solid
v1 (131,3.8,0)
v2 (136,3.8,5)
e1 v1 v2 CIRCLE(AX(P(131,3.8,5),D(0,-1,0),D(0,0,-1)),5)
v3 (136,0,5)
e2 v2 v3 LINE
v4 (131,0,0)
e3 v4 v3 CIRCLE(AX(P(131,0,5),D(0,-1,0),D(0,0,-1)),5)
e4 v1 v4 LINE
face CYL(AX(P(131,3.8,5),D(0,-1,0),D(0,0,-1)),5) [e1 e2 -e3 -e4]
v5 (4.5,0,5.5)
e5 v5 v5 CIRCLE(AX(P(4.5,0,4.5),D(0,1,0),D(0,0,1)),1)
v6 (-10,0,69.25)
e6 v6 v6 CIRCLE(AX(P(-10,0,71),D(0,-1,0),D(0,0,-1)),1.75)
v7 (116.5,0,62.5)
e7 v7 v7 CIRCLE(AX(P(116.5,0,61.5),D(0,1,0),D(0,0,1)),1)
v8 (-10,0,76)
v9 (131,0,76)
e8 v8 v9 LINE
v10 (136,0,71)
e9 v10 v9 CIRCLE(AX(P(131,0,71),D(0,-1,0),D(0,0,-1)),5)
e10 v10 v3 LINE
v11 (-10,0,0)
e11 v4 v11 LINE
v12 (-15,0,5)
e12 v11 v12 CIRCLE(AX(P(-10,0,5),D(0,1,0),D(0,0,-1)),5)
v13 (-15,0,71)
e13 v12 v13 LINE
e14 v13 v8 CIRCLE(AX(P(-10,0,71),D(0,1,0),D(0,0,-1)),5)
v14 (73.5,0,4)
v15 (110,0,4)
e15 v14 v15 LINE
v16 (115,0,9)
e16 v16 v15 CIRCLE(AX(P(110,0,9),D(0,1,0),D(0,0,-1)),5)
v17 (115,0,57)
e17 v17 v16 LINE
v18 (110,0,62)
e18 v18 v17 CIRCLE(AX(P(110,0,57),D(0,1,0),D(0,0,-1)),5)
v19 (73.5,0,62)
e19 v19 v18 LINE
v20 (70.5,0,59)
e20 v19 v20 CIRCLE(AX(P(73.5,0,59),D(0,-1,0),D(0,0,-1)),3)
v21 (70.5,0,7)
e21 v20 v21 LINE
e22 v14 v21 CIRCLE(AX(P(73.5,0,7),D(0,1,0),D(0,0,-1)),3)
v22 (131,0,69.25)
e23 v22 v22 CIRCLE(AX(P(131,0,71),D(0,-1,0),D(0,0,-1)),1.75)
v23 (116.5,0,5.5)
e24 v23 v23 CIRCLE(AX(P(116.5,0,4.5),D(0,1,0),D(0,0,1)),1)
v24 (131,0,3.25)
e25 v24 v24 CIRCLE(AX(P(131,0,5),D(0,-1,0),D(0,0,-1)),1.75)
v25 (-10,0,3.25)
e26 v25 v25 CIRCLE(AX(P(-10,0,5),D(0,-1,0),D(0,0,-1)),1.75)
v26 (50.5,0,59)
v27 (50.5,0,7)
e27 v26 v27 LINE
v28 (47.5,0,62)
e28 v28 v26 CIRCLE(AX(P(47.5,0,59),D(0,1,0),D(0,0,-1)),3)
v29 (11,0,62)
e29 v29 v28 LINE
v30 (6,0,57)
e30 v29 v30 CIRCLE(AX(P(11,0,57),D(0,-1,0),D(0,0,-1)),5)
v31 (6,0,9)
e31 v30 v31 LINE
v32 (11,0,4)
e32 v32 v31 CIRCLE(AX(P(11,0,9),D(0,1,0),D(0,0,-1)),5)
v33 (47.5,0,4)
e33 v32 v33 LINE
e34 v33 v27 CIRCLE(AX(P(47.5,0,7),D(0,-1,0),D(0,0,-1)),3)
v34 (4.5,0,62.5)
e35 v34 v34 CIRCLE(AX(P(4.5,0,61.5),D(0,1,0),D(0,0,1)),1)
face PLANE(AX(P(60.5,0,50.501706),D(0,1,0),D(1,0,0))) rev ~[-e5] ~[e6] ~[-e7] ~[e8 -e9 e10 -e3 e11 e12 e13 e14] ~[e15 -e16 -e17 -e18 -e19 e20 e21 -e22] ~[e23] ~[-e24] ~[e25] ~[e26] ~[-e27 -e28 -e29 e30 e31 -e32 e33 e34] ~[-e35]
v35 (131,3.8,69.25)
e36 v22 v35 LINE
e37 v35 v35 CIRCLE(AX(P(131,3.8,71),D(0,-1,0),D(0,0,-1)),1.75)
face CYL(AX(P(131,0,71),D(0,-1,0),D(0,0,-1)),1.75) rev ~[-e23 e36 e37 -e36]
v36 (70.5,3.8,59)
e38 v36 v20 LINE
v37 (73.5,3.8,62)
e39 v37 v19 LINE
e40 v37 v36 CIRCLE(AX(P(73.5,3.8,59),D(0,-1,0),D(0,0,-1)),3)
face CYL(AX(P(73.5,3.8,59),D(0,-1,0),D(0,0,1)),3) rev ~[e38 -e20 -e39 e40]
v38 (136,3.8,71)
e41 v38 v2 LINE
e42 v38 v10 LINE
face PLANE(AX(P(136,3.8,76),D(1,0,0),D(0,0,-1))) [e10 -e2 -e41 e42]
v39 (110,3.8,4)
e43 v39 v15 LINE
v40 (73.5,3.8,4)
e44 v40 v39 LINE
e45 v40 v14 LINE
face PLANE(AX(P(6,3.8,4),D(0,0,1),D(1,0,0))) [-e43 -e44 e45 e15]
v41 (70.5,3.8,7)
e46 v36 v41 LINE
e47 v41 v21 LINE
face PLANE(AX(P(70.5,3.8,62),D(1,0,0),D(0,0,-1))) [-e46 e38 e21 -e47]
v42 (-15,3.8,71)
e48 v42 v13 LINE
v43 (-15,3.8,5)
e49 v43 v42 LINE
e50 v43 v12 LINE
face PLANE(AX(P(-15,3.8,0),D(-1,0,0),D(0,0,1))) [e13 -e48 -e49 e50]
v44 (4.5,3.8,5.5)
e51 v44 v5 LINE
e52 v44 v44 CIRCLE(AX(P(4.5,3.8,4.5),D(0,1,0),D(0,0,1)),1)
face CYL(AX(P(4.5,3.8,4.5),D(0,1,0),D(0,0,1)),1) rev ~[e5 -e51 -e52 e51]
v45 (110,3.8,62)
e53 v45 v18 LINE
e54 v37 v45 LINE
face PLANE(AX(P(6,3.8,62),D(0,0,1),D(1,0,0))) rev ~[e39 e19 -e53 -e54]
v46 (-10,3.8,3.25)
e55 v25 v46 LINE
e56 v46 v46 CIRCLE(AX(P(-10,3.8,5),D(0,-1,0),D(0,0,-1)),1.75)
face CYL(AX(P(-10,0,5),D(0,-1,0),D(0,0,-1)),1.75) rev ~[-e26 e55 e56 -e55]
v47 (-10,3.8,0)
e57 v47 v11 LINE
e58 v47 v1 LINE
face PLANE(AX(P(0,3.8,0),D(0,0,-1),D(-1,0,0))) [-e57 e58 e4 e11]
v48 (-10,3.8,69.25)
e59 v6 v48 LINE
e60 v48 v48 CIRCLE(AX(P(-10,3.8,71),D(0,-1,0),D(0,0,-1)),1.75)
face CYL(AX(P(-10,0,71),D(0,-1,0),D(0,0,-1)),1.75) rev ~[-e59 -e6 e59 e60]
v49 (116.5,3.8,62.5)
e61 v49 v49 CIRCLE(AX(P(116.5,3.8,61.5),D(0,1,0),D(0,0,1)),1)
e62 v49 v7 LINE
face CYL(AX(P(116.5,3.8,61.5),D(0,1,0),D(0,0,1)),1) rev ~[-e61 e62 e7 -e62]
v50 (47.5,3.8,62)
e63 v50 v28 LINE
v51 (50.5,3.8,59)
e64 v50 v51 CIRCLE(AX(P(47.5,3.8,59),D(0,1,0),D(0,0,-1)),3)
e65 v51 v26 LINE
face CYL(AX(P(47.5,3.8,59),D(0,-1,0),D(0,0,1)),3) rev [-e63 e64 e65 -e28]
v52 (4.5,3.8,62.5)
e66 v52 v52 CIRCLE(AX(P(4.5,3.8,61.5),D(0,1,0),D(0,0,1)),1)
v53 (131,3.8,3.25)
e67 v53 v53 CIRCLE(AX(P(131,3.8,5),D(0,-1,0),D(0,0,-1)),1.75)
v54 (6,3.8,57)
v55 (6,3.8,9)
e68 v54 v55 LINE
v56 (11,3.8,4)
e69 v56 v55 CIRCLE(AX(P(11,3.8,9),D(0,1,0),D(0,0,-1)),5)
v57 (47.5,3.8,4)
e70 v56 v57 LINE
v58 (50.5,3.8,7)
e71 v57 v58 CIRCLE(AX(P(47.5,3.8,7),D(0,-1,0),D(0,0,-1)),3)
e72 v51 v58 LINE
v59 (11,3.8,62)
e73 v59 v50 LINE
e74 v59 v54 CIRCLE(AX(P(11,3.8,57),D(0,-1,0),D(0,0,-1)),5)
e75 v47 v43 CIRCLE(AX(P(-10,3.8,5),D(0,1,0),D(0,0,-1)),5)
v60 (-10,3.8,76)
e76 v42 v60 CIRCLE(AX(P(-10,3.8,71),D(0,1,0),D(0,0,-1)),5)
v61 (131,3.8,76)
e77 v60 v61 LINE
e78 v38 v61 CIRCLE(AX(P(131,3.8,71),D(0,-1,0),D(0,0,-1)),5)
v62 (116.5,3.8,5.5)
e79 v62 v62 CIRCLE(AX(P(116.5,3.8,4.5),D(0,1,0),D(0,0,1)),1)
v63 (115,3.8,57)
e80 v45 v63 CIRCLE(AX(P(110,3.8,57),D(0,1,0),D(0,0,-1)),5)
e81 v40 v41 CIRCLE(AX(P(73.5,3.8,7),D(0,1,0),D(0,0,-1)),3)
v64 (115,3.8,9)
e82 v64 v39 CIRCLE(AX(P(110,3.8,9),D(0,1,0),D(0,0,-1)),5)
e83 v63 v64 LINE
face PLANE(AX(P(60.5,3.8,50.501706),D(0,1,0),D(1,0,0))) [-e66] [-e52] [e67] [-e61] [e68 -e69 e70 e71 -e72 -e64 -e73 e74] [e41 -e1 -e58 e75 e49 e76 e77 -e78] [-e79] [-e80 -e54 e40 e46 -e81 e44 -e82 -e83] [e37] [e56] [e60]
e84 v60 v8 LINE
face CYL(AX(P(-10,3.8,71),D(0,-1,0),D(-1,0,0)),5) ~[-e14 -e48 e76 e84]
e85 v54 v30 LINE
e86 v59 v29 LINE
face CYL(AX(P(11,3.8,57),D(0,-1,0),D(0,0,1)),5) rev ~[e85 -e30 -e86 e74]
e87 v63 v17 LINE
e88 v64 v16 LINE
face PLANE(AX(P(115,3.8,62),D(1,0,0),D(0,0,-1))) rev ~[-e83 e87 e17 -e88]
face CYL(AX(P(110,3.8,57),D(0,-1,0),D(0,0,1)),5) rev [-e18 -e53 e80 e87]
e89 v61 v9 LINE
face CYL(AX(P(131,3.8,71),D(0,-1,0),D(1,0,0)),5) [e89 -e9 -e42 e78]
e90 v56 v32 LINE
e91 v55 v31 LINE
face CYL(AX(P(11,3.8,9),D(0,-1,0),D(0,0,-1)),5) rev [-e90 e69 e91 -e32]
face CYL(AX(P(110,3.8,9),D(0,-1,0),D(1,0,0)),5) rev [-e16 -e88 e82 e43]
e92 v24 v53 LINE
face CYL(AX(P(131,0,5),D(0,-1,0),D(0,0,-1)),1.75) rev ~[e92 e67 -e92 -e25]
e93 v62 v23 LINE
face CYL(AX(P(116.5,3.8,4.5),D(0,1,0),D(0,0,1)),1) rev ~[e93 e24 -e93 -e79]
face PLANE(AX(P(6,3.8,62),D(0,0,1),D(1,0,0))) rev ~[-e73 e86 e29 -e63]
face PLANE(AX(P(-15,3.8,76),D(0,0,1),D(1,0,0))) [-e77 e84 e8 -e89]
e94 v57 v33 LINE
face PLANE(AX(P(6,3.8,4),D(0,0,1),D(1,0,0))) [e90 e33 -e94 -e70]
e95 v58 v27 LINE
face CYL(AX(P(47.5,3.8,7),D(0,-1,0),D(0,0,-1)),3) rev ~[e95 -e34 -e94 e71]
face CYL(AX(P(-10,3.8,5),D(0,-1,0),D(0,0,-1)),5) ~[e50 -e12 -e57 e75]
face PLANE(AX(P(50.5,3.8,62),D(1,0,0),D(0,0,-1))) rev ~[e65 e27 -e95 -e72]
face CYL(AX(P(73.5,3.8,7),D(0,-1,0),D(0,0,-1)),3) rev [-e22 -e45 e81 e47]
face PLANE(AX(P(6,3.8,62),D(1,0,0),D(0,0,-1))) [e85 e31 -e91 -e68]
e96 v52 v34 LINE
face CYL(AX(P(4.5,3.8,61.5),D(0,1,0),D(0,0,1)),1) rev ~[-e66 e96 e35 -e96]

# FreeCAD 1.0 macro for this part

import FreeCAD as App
import Part
import Sketcher


def edges_at(feature, points):
    """Names of the edges that pass closest to the given points."""
    edges = feature.Shape.Edges
    near = lambda p: min(range(len(edges)), key=lambda i: edges[i].distToShape(Part.Vertex(*p))[0])
    return sorted({f"Edge{near(p) + 1}" for p in points})

doc = App.newDocument("Part")
params = doc.addObject("Spreadsheet::Sheet", "Params")
for row, (alias, value) in enumerate([
    ("sketch1_width", "121 mm"),
    ("sketch1_height", "66 mm"),
    ("pad1_length", "3.8 mm"),
    ("sketch2_width", "109 mm"),
    ("sketch2_height", "58 mm"),
    ("fillet_radius", "5 mm"),
    ("sketch3_width", "20 mm"),
    ("sketch3_height", "58 mm"),
    ("pad2_length", "3.8 mm"),
    ("fillet2_radius", "3 mm"),
    ("sketch4_diameter", "2 mm"),
    ("sketch5_width", "15 mm"),
    ("sketch5_width2", "151 mm"),
    ("sketch5_height", "76 mm"),
    ("sketch5_height2", "66 mm"),
    ("sketch6_diameter", "3.5 mm"),
    ("fillet3_radius", "5 mm"),
], start=1):
    params.set(f"A{row}", alias)
    params.set(f"B{row}", "=" + value)
    params.setAlias(f"B{row}", alias)

body = doc.addObject("PartDesign::Body", "Body")

# Sketch on XZ plane
sketch1 = doc.addObject("Sketcher::SketchObject", "Sketch")
body.addObject(sketch1)
sketch1.AttachmentSupport = (doc.XZ_Plane, [""])
sketch1.MapMode = "FlatFace"
sketch1.addGeometry(Part.LineSegment(App.Vector(0, 0, 0), App.Vector(0, 66, 0)), False)
sketch1.addGeometry(Part.LineSegment(App.Vector(0, 66, 0), App.Vector(121, 66, 0)), False)
sketch1.addGeometry(Part.LineSegment(App.Vector(121, 66, 0), App.Vector(121, 0, 0)), False)
sketch1.addGeometry(Part.LineSegment(App.Vector(121, 0, 0), App.Vector(0, 0, 0)), False)
sketch1.addConstraint(Sketcher.Constraint("Coincident", 0, 2, 1, 1))
sketch1.addConstraint(Sketcher.Constraint("Coincident", 1, 2, 2, 1))
sketch1.addConstraint(Sketcher.Constraint("Coincident", 2, 2, 3, 1))
sketch1.addConstraint(Sketcher.Constraint("Coincident", 3, 2, 0, 1))
sketch1.addConstraint(Sketcher.Constraint("Vertical", 0))
sketch1.addConstraint(Sketcher.Constraint("Horizontal", 1))
sketch1.addConstraint(Sketcher.Constraint("Vertical", 2))
sketch1.addConstraint(Sketcher.Constraint("Horizontal", 3))
sketch1.addConstraint(Sketcher.Constraint("Coincident", 3, 2, -1, 1))
sketch1.addConstraint(Sketcher.Constraint("DistanceX", 1, 1, 1, 2, 121.0))
sketch1.addConstraint(Sketcher.Constraint("DistanceY", 0, 1, 0, 2, 66.0))
sketch1.setExpression("Constraints[9]", "Params.sketch1_width")
sketch1.setExpression("Constraints[10]", "Params.sketch1_height")
pad1 = doc.addObject("PartDesign::Pad", "Pad")
body.addObject(pad1)
pad1.Profile = sketch1
pad1.setExpression("Length", "Params.pad1_length")
pad1.Reversed = True

# Sketch on XZ plane
sketch2 = doc.addObject("Sketcher::SketchObject", "Sketch001")
body.addObject(sketch2)
sketch2.AttachmentSupport = (doc.XZ_Plane, [""])
sketch2.MapMode = "FlatFace"
sketch2.AttachmentOffset = App.Placement(App.Vector(0, 0, -3.8), App.Rotation())
sketch2.addGeometry(Part.LineSegment(App.Vector(6, 4, 0), App.Vector(6, 62, 0)), False)
sketch2.addGeometry(Part.LineSegment(App.Vector(6, 62, 0), App.Vector(115, 62, 0)), False)
sketch2.addGeometry(Part.LineSegment(App.Vector(115, 62, 0), App.Vector(115, 4, 0)), False)
sketch2.addGeometry(Part.LineSegment(App.Vector(115, 4, 0), App.Vector(6, 4, 0)), False)
sketch2.addConstraint(Sketcher.Constraint("Coincident", 0, 2, 1, 1))
sketch2.addConstraint(Sketcher.Constraint("Coincident", 1, 2, 2, 1))
sketch2.addConstraint(Sketcher.Constraint("Coincident", 2, 2, 3, 1))
sketch2.addConstraint(Sketcher.Constraint("Coincident", 3, 2, 0, 1))
sketch2.addConstraint(Sketcher.Constraint("Vertical", 0))
sketch2.addConstraint(Sketcher.Constraint("Horizontal", 1))
sketch2.addConstraint(Sketcher.Constraint("Vertical", 2))
sketch2.addConstraint(Sketcher.Constraint("Horizontal", 3))
sketch2.addConstraint(Sketcher.Constraint("DistanceX", 1, 1, 1, 2, 109.0))
sketch2.addConstraint(Sketcher.Constraint("DistanceY", 0, 1, 0, 2, 58.0))
sketch2.addConstraint(Sketcher.Constraint("DistanceX", -1, 1, 0, 2, 6.0))
sketch2.addConstraint(Sketcher.Constraint("DistanceY", -1, 1, 0, 2, 62.0))
sketch2.setExpression("Constraints[8]", "Params.sketch2_width")
sketch2.setExpression("Constraints[9]", "Params.sketch2_height")
pocket1 = doc.addObject("PartDesign::Pocket", "Pocket")
body.addObject(pocket1)
pocket1.Profile = sketch2
pocket1.Type = "ThroughAll"
pocket1.Reversed = True
doc.recompute()

fillet = doc.addObject("PartDesign::Fillet", "Fillet")
body.addObject(fillet)
fillet.Base = (pocket1, edges_at(pocket1, [
    (115, 1.9, 4),
    (115, 1.9, 62),
    (6, 1.9, 62),
    (6, 1.9, 4),
]))
fillet.setExpression("Radius", "Params.fillet_radius")

# Sketch on XZ plane
sketch3 = doc.addObject("Sketcher::SketchObject", "Sketch002")
body.addObject(sketch3)
sketch3.AttachmentSupport = (doc.XZ_Plane, [""])
sketch3.MapMode = "FlatFace"
sketch3.AttachmentOffset = App.Placement(App.Vector(0, 0, -3.8), App.Rotation())
sketch3.addGeometry(Part.LineSegment(App.Vector(50, 4, 0), App.Vector(50, 62, 0)), False)
sketch3.addGeometry(Part.LineSegment(App.Vector(50, 62, 0), App.Vector(70, 62, 0)), False)
sketch3.addGeometry(Part.LineSegment(App.Vector(70, 62, 0), App.Vector(70, 4, 0)), False)
sketch3.addGeometry(Part.LineSegment(App.Vector(70, 4, 0), App.Vector(50, 4, 0)), False)
sketch3.addConstraint(Sketcher.Constraint("Coincident", 0, 2, 1, 1))
sketch3.addConstraint(Sketcher.Constraint("Coincident", 1, 2, 2, 1))
sketch3.addConstraint(Sketcher.Constraint("Coincident", 2, 2, 3, 1))
sketch3.addConstraint(Sketcher.Constraint("Coincident", 3, 2, 0, 1))
sketch3.addConstraint(Sketcher.Constraint("Vertical", 0))
sketch3.addConstraint(Sketcher.Constraint("Horizontal", 1))
sketch3.addConstraint(Sketcher.Constraint("Vertical", 2))
sketch3.addConstraint(Sketcher.Constraint("Horizontal", 3))
sketch3.addConstraint(Sketcher.Constraint("DistanceX", 1, 1, 1, 2, 20.0))
sketch3.addConstraint(Sketcher.Constraint("DistanceY", 0, 1, 0, 2, 58.0))
sketch3.addConstraint(Sketcher.Constraint("DistanceY", -1, 1, 0, 2, 62.0))
sketch3.addConstraint(Sketcher.Constraint("DistanceX", -1, 1, 0, 2, 50.5))
sketch3.setExpression("Constraints[8]", "Params.sketch3_width")
sketch3.setExpression("Constraints[9]", "Params.sketch3_height")
pad2 = doc.addObject("PartDesign::Pad", "Pad001")
body.addObject(pad2)
pad2.Profile = sketch3
pad2.setExpression("Length", "Params.pad2_length")
doc.recompute()

fillet2 = doc.addObject("PartDesign::Fillet", "Fillet001")
body.addObject(fillet2)
fillet2.Base = (pad2, edges_at(pad2, [
    (70.5, 1.9, 4),
    (70.5, 1.9, 62),
    (50.5, 1.9, 62),
    (50.5, 1.9, 4),
]))
fillet2.setExpression("Radius", "Params.fillet2_radius")

# Sketch on XZ plane
sketch4 = doc.addObject("Sketcher::SketchObject", "Sketch003")
body.addObject(sketch4)
sketch4.AttachmentSupport = (doc.XZ_Plane, [""])
sketch4.MapMode = "FlatFace"
sketch4.AttachmentOffset = App.Placement(App.Vector(0, 0, -3.8), App.Rotation())
sketch4.addGeometry(Part.Circle(App.Vector(116.5, 61.5, 0), App.Vector(0, 0, 1), 1), False)
sketch4.addGeometry(Part.Circle(App.Vector(116.5, 4.5, 0), App.Vector(0, 0, 1), 1), False)
sketch4.addGeometry(Part.Circle(App.Vector(4.5, 4.5, 0), App.Vector(0, 0, 1), 1), False)
sketch4.addGeometry(Part.Circle(App.Vector(4.5, 61.5, 0), App.Vector(0, 0, 1), 1), False)
sketch4.addConstraint(Sketcher.Constraint("Equal", 0, 1))
sketch4.addConstraint(Sketcher.Constraint("Equal", 1, 2))
sketch4.addConstraint(Sketcher.Constraint("Equal", 2, 3))
sketch4.addConstraint(Sketcher.Constraint("Horizontal", 1, 3, 2, 3))
sketch4.addConstraint(Sketcher.Constraint("Horizontal", 0, 3, 3, 3))
sketch4.addConstraint(Sketcher.Constraint("Vertical", 0, 3, 1, 3))
sketch4.addConstraint(Sketcher.Constraint("Vertical", 2, 3, 3, 3))
sketch4.addConstraint(Sketcher.Constraint("Diameter", 0, 2.0))
sketch4.addConstraint(Sketcher.Constraint("DistanceY", 1, 3, 0, 3, 57.0))
sketch4.addConstraint(Sketcher.Constraint("DistanceX", 2, 3, 1, 3, 112.0))
sketch4.addConstraint(Sketcher.Constraint("DistanceX", -1, 1, 0, 3, 116.5))
sketch4.addConstraint(Sketcher.Constraint("DistanceY", -1, 1, 0, 3, 61.5))
sketch4.setExpression("Constraints[7]", "Params.sketch4_diameter")
pocket2 = doc.addObject("PartDesign::Pocket", "Pocket001")
body.addObject(pocket2)
pocket2.Profile = sketch4
pocket2.Type = "ThroughAll"
pocket2.Reversed = True

# Sketch on XZ plane
sketch5 = doc.addObject("Sketcher::SketchObject", "Sketch004")
body.addObject(sketch5)
sketch5.AttachmentSupport = (doc.XZ_Plane, [""])
sketch5.MapMode = "FlatFace"
sketch5.AttachmentOffset = App.Placement(App.Vector(0, 0, -3.8), App.Rotation())
sketch5.addGeometry(Part.LineSegment(App.Vector(0, 0, 0), App.Vector(-15, 0, 0)), False)
sketch5.addGeometry(Part.LineSegment(App.Vector(-15, 0, 0), App.Vector(-15, 76, 0)), False)
sketch5.addGeometry(Part.LineSegment(App.Vector(-15, 76, 0), App.Vector(136, 76, 0)), False)
sketch5.addGeometry(Part.LineSegment(App.Vector(136, 76, 0), App.Vector(136, 0, 0)), False)
sketch5.addGeometry(Part.LineSegment(App.Vector(136, 0, 0), App.Vector(121, 0, 0)), False)
sketch5.addGeometry(Part.LineSegment(App.Vector(121, 0, 0), App.Vector(121, 66, 0)), False)
sketch5.addGeometry(Part.LineSegment(App.Vector(121, 66, 0), App.Vector(0, 66, 0)), False)
sketch5.addGeometry(Part.LineSegment(App.Vector(0, 66, 0), App.Vector(0, 0, 0)), False)
sketch5.addConstraint(Sketcher.Constraint("Coincident", 0, 2, 1, 1))
sketch5.addConstraint(Sketcher.Constraint("Coincident", 1, 2, 2, 1))
sketch5.addConstraint(Sketcher.Constraint("Coincident", 2, 2, 3, 1))
sketch5.addConstraint(Sketcher.Constraint("Coincident", 3, 2, 4, 1))
sketch5.addConstraint(Sketcher.Constraint("Coincident", 4, 2, 5, 1))
sketch5.addConstraint(Sketcher.Constraint("Coincident", 5, 2, 6, 1))
sketch5.addConstraint(Sketcher.Constraint("Coincident", 6, 2, 7, 1))
sketch5.addConstraint(Sketcher.Constraint("Coincident", 7, 2, 0, 1))
sketch5.addConstraint(Sketcher.Constraint("Horizontal", 0))
sketch5.addConstraint(Sketcher.Constraint("Vertical", 1))
sketch5.addConstraint(Sketcher.Constraint("Horizontal", 2))
sketch5.addConstraint(Sketcher.Constraint("Vertical", 3))
sketch5.addConstraint(Sketcher.Constraint("Horizontal", 4))
sketch5.addConstraint(Sketcher.Constraint("Vertical", 5))
sketch5.addConstraint(Sketcher.Constraint("Horizontal", 6))
sketch5.addConstraint(Sketcher.Constraint("Vertical", 7))
sketch5.addConstraint(Sketcher.Constraint("Coincident", 7, 2, -1, 1))
sketch5.addConstraint(Sketcher.Constraint("PointOnObject", 3, 2, -1))
sketch5.addConstraint(Sketcher.Constraint("Equal", 0, 4))
sketch5.addConstraint(Sketcher.Constraint("DistanceX", 0, 2, 0, 1, 15.0))
sketch5.addConstraint(Sketcher.Constraint("DistanceX", 2, 1, 2, 2, 151.0))
sketch5.addConstraint(Sketcher.Constraint("DistanceY", 1, 1, 1, 2, 76.0))
sketch5.addConstraint(Sketcher.Constraint("DistanceY", 5, 1, 5, 2, 66.0))
sketch5.setExpression("Constraints[19]", "Params.sketch5_width")
sketch5.setExpression("Constraints[20]", "Params.sketch5_width2")
sketch5.setExpression("Constraints[21]", "Params.sketch5_height")
sketch5.setExpression("Constraints[22]", "Params.sketch5_height2")
pad3 = doc.addObject("PartDesign::Pad", "Pad002")
body.addObject(pad3)
pad3.Profile = sketch5
pad3.Type = "UpToLast"

# Sketch on XZ plane
sketch6 = doc.addObject("Sketcher::SketchObject", "Sketch005")
body.addObject(sketch6)
sketch6.AttachmentSupport = (doc.XZ_Plane, [""])
sketch6.MapMode = "FlatFace"
sketch6.addGeometry(Part.Circle(App.Vector(-10, 71, 0), App.Vector(0, 0, 1), 1.8), False)
sketch6.addGeometry(Part.Circle(App.Vector(-10, 5, 0), App.Vector(0, 0, 1), 1.8), False)
sketch6.addGeometry(Part.Circle(App.Vector(131, 71, 0), App.Vector(0, 0, 1), 1.8), False)
sketch6.addGeometry(Part.Circle(App.Vector(131, 5, 0), App.Vector(0, 0, 1), 1.8), False)
sketch6.addConstraint(Sketcher.Constraint("Equal", 0, 1))
sketch6.addConstraint(Sketcher.Constraint("Equal", 1, 2))
sketch6.addConstraint(Sketcher.Constraint("Equal", 2, 3))
sketch6.addConstraint(Sketcher.Constraint("Horizontal", 0, 3, 2, 3))
sketch6.addConstraint(Sketcher.Constraint("Horizontal", 1, 3, 3, 3))
sketch6.addConstraint(Sketcher.Constraint("Vertical", 0, 3, 1, 3))
sketch6.addConstraint(Sketcher.Constraint("Vertical", 2, 3, 3, 3))
sketch6.addConstraint(Sketcher.Constraint("Diameter", 0, 3.5))
sketch6.addConstraint(Sketcher.Constraint("DistanceX", 0, 3, -1, 1, 10.0))
sketch6.addConstraint(Sketcher.Constraint("DistanceY", -1, 1, 0, 3, 71.0))
sketch6.addConstraint(Sketcher.Constraint("DistanceY", -1, 1, 1, 3, 5.0))
sketch6.addConstraint(Sketcher.Constraint("DistanceX", -1, 1, 2, 3, 131.0))
sketch6.setExpression("Constraints[7]", "Params.sketch6_diameter")
pocket3 = doc.addObject("PartDesign::Pocket", "Pocket002")
body.addObject(pocket3)
pocket3.Profile = sketch6
pocket3.Type = "ThroughAll"
doc.recompute()

fillet3 = doc.addObject("PartDesign::Fillet", "Fillet002")
body.addObject(fillet3)
fillet3.Base = (pocket3, edges_at(pocket3, [
    (136, 1.9, 0),
    (136, 1.9, 76),
    (-15, 1.9, 76),
    (-15, 1.9, 0),
]))
fillet3.setExpression("Radius", "Params.fillet3_radius")

doc.recompute()
